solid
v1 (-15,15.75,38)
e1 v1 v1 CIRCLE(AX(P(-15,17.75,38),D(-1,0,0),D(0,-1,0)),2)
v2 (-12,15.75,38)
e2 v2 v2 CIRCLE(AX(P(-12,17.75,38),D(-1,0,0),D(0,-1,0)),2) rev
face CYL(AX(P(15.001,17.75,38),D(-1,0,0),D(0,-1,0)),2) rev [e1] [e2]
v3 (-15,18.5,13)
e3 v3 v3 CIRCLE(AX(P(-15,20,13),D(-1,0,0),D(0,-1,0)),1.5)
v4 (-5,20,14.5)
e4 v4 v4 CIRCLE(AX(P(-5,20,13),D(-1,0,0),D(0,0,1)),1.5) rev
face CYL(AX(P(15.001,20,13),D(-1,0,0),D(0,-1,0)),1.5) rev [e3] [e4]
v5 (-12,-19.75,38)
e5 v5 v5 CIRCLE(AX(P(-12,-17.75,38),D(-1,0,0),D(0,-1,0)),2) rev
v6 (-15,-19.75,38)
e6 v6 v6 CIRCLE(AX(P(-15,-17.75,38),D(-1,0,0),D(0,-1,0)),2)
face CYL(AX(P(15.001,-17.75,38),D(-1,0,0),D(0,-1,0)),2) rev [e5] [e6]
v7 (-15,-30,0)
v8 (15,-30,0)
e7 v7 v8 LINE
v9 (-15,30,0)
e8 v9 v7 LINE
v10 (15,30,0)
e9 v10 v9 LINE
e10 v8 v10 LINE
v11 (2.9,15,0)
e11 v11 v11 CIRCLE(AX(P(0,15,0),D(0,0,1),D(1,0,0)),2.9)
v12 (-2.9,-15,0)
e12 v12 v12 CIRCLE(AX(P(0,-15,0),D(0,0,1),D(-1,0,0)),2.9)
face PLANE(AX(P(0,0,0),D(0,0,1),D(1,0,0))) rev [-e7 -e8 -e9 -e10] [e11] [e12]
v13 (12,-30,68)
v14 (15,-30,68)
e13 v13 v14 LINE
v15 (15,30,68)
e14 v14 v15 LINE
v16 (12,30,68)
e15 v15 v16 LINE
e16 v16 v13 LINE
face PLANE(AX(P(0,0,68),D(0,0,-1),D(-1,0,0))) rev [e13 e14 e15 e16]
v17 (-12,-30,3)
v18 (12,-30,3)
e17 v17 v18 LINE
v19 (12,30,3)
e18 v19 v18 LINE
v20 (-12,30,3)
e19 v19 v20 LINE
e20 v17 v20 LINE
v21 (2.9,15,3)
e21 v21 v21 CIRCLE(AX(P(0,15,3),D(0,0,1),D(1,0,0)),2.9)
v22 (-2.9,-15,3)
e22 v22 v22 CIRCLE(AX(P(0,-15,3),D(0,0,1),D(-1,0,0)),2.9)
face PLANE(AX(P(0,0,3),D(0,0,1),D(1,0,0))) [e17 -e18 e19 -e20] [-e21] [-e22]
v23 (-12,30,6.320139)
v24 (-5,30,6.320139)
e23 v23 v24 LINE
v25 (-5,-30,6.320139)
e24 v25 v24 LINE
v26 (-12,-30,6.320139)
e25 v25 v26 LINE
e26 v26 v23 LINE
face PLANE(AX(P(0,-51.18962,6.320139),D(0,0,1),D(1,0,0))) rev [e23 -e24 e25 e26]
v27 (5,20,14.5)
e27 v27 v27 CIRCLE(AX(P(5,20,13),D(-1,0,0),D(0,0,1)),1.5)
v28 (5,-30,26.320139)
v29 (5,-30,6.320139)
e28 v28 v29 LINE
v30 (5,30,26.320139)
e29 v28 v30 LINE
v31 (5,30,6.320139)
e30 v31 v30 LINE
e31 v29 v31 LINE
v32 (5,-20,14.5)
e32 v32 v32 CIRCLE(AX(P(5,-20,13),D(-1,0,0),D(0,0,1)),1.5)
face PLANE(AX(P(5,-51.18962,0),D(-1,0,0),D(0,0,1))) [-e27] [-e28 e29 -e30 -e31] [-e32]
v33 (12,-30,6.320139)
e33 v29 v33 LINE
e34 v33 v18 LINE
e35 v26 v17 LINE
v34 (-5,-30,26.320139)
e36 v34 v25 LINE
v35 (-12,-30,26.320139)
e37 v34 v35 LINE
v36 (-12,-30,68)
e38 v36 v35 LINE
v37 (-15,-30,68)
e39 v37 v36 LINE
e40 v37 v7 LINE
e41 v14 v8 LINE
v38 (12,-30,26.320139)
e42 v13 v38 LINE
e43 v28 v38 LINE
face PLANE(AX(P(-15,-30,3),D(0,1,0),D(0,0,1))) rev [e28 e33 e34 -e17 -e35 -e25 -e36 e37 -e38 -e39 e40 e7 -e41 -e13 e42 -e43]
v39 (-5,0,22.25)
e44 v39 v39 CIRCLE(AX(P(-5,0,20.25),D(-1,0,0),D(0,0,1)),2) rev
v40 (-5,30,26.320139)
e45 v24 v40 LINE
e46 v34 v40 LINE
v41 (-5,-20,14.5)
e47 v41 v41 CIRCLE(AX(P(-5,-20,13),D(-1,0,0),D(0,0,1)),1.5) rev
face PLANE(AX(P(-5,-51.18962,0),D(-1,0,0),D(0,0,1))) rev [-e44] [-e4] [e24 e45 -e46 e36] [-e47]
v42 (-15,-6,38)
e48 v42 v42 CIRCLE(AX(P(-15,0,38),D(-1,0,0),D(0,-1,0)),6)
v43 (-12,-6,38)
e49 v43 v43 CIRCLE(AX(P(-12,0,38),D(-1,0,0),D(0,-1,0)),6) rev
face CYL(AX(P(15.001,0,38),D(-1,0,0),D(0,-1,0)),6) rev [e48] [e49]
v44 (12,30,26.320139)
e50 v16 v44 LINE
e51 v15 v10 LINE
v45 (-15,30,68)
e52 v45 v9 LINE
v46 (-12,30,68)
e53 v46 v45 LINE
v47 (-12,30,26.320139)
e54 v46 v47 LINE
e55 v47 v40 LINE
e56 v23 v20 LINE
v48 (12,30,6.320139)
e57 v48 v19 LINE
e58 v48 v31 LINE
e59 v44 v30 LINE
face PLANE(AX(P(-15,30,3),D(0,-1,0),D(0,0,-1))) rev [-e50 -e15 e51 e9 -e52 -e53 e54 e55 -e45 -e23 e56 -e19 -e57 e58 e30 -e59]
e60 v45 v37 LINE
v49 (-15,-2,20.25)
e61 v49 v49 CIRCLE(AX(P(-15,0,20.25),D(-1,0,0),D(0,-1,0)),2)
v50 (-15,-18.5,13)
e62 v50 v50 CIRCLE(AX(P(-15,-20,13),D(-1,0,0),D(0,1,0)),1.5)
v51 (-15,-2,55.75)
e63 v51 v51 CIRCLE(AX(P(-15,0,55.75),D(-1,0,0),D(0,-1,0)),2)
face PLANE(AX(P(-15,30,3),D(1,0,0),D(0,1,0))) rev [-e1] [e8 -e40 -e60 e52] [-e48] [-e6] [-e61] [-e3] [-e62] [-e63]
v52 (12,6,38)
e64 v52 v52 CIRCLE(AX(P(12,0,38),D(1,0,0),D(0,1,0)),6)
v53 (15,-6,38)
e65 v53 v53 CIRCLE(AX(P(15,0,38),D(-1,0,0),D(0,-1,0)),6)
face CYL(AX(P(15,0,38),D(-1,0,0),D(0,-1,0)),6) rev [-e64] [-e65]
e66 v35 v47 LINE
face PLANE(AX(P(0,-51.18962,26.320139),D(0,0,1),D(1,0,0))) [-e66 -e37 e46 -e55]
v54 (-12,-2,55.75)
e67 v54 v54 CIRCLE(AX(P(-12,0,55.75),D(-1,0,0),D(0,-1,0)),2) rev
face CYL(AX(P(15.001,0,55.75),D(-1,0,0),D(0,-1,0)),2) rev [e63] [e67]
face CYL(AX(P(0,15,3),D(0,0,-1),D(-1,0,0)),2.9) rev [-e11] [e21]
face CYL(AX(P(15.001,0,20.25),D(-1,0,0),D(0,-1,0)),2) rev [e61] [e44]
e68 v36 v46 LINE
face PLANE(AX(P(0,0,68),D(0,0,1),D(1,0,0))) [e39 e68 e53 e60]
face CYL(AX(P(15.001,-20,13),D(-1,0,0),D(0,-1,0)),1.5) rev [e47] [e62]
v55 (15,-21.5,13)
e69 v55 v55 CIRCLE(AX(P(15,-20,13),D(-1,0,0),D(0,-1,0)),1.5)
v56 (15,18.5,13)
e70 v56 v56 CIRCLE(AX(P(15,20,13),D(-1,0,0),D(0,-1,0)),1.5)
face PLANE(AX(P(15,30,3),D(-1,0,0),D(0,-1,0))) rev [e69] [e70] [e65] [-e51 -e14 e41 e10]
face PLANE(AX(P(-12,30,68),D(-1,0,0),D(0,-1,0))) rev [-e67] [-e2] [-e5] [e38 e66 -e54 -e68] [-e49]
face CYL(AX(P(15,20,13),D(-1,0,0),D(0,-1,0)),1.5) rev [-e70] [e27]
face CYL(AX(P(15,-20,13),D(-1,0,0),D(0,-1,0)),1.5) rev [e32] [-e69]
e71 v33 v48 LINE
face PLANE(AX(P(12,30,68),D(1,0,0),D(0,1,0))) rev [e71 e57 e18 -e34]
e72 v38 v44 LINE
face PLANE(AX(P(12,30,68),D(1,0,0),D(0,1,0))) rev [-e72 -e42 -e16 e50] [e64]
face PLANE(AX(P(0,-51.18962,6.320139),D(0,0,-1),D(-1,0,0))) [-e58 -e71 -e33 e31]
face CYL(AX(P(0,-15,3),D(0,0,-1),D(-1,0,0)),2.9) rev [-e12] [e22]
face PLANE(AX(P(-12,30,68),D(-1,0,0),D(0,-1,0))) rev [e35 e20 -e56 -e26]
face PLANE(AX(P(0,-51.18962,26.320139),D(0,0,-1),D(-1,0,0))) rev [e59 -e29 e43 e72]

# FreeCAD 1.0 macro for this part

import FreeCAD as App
import Part
import Sketcher
from FreeCAD import Vector
Q = App.Units.Quantity


def add_polygon(sketch, points):
    """Adds a closed chain of lines whose ends are joined by coincident constraints."""
    first, n = sketch.GeometryCount, len(points)
    for a, b in zip(points, points[1:] + points[:1]):
        sketch.addGeometry(Part.LineSegment(App.Vector(*a, 0), App.Vector(*b, 0)), False)
    for i in range(n):
        sketch.addConstraint(Sketcher.Constraint("Coincident", first + i, 2, first + (i + 1) % n, 1))

doc = App.newDocument("Part")
params = doc.addObject("Spreadsheet::Sheet", "Params")
for row, (alias, value) in enumerate([
    ("sketch1_diameter", "5.8 mm"),
    ("sketch1_width", "30 mm"),
    ("sketch1_height", "60 mm"),
    ("pad1_length", "3 mm"),
    ("sketch2_width", "3 mm"),
    ("sketch2_height", "60 mm"),
    ("pad2_length", "65 mm"),
    ("sketch3_width", "7 mm"),
    ("sketch3_height", "20 mm"),
    ("pad3_length", "60 mm"),
    ("sketch4_diameter", "3 mm"),
    ("sketch5_diameter", "12 mm"),
    ("sketch6_diameter", "4 mm"),
    ("sketch7_diameter", "4 mm"),
    ("sketch8_diameter", "4 mm"),
    ("sketch9_diameter", "4 mm"),
    ("sketch10_diameter", "3 mm"),
    ("sketch11_diameter", "3 mm"),
    ("sketch11_diameter2", "12 mm"),
], start=1):
    params.set(f"A{row}", alias)
    params.set(f"B{row}", "=" + value)
    params.setAlias(f"B{row}", alias)

body = doc.addObject("PartDesign::Body", "Body")

# Sketch on XY plane
sketch1 = body.newObject("Sketcher::SketchObject", "Sketch")
sketch1.AttachmentSupport = (doc.getObject("XY_Plane"), [""])
sketch1.MapMode = "FlatFace"
add_polygon(sketch1, [(-15, 30), (-15, -30), (15, -30), (15, 30)])  # lines 0-3
sketch1.addGeometry(Part.Circle(Vector(0, -15, 0), Vector(0, 0, 1), 2.9), False)  # 4
sketch1.addGeometry(Part.Circle(Vector(0, 15, 0), Vector(0, 0, 1), 2.9), False)  # 5
sketch1.addConstraint([
    Sketcher.Constraint("Vertical", 0),
    Sketcher.Constraint("Horizontal", 1),
    Sketcher.Constraint("Vertical", 2),
    Sketcher.Constraint("Horizontal", 3),
    Sketcher.Constraint("Equal", 4, 5),
    Sketcher.Constraint("Symmetric", 4, 3, 5, 3, -1, 1),
    Sketcher.Constraint("Symmetric", 0, 2, 2, 2, -1, 1),
    Sketcher.Constraint("PointOnObject", 4, 3, -2),
    Sketcher.Constraint("Diameter", 4, Q("5.8 mm")),
    Sketcher.Constraint("DistanceX", 1, 1, 1, 2, Q("30 mm")),
    Sketcher.Constraint("DistanceY", 0, 2, 0, 1, Q("60 mm")),
    Sketcher.Constraint("DistanceY", 4, 3, -1, 1, Q("15 mm")),
])
sketch1.setExpression("Constraints[12]", "Params.sketch1_diameter")
sketch1.setExpression("Constraints[13]", "Params.sketch1_width")
sketch1.setExpression("Constraints[14]", "Params.sketch1_height")
pad1 = body.newObject("PartDesign::Pad", "Pad")
pad1.Profile = sketch1
pad1.setExpression("Length", "Params.pad1_length")

# Sketch on XY plane
sketch2 = body.newObject("Sketcher::SketchObject", "Sketch001")
sketch2.AttachmentSupport = (doc.getObject("XY_Plane"), [""])
sketch2.MapMode = "FlatFace"
sketch2.AttachmentOffset = App.Placement(Vector(0, 0, 3), App.Rotation())
add_polygon(sketch2, [(-15, 30), (-15, -30), (-12, -30), (-12, 30)])  # lines 0-3
add_polygon(sketch2, [(12, 30), (12, -30), (15, -30), (15, 30)])  # lines 4-7
sketch2.addConstraint([
    Sketcher.Constraint("Vertical", 0),
    Sketcher.Constraint("Horizontal", 1),
    Sketcher.Constraint("Vertical", 2),
    Sketcher.Constraint("Horizontal", 3),
    Sketcher.Constraint("Vertical", 4),
    Sketcher.Constraint("Horizontal", 5),
    Sketcher.Constraint("Vertical", 6),
    Sketcher.Constraint("Horizontal", 7),
    Sketcher.Constraint("Symmetric", 2, 2, 4, 2, -1, 1),
    Sketcher.Constraint("Symmetric", 0, 2, 6, 2, -1, 1),
    Sketcher.Constraint("Horizontal", 1, 2, 4, 2),
    Sketcher.Constraint("DistanceX", 1, 1, 1, 2, Q("3 mm")),
    Sketcher.Constraint("DistanceY", 0, 2, 0, 1, Q("60 mm")),
    Sketcher.Constraint("DistanceX", 0, 2, -1, 1, Q("15 mm")),
])
sketch2.setExpression("Constraints[19]", "Params.sketch2_width")
sketch2.setExpression("Constraints[20]", "Params.sketch2_height")
pad2 = body.newObject("PartDesign::Pad", "Pad001")
pad2.Profile = sketch2
pad2.setExpression("Length", "Params.pad2_length")

# Sketch on XZ plane
sketch3 = body.newObject("Sketcher::SketchObject", "Sketch002")
sketch3.AttachmentSupport = (doc.getObject("XZ_Plane"), [""])
sketch3.MapMode = "FlatFace"
sketch3.AttachmentOffset = App.Placement(Vector(0, 0, -30), App.Rotation())
add_polygon(sketch3, [(5, 6), (5, 26), (12, 26), (12, 6)])  # lines 0-3
add_polygon(sketch3, [(-12, 6), (-12, 26), (-5, 26), (-5, 6)])  # lines 4-7
sketch3.addConstraint([
    Sketcher.Constraint("Vertical", 0),
    Sketcher.Constraint("Horizontal", 1),
    Sketcher.Constraint("Vertical", 2),
    Sketcher.Constraint("Horizontal", 3),
    Sketcher.Constraint("Vertical", 4),
    Sketcher.Constraint("Horizontal", 5),
    Sketcher.Constraint("Vertical", 6),
    Sketcher.Constraint("Horizontal", 7),
    Sketcher.Constraint("Symmetric", 1, 2, 4, 2, -2),
    Sketcher.Constraint("Symmetric", 3, 2, 6, 2, -2),
    Sketcher.Constraint("DistanceX", 1, 1, 1, 2, Q("7 mm")),
    Sketcher.Constraint("DistanceY", 0, 1, 0, 2, Q("20 mm")),
    Sketcher.Constraint("DistanceX", -1, 1, 0, 2, Q("5 mm")),
    Sketcher.Constraint("DistanceY", -1, 1, 0, 2, Q("26.320139 mm")),
])
sketch3.setExpression("Constraints[18]", "Params.sketch3_width")
sketch3.setExpression("Constraints[19]", "Params.sketch3_height")
pad3 = body.newObject("PartDesign::Pad", "Pad002")
pad3.Profile = sketch3
pad3.setExpression("Length", "Params.pad3_length")

# Sketch on YZ plane
sketch4 = body.newObject("Sketcher::SketchObject", "Sketch003")
sketch4.AttachmentSupport = (doc.getObject("YZ_Plane"), [""])
sketch4.MapMode = "FlatFace"
sketch4.AttachmentOffset = App.Placement(Vector(0, 0, -15), App.Rotation())
sketch4.addGeometry(Part.Circle(Vector(20, 13, 0), Vector(0, 0, 1), 1.5), False)
sketch4.addConstraint([
    Sketcher.Constraint("Diameter", 0, Q("3 mm")),
    Sketcher.Constraint("DistanceX", -1, 1, 0, 3, Q("20 mm")),
    Sketcher.Constraint("DistanceY", -1, 1, 0, 3, Q("13 mm")),
])
sketch4.setExpression("Constraints[0]", "Params.sketch4_diameter")
pocket1 = body.newObject("PartDesign::Pocket", "Pocket")
pocket1.Profile = sketch4
pocket1.Type = "UpToFirst"
pocket1.Reversed = True

# Sketch on YZ plane
sketch5 = body.newObject("Sketcher::SketchObject", "Sketch004")
sketch5.AttachmentSupport = (doc.getObject("YZ_Plane"), [""])
sketch5.MapMode = "FlatFace"
sketch5.AttachmentOffset = App.Placement(Vector(0, 0, -15), App.Rotation())
sketch5.addGeometry(Part.Circle(Vector(0, 38, 0), Vector(0, 0, 1), 6), False)
sketch5.addConstraint([
    Sketcher.Constraint("PointOnObject", 0, 3, -2),
    Sketcher.Constraint("Diameter", 0, Q("12 mm")),
    Sketcher.Constraint("DistanceY", -1, 1, 0, 3, Q("38 mm")),
])
sketch5.setExpression("Constraints[1]", "Params.sketch5_diameter")
pocket2 = body.newObject("PartDesign::Pocket", "Pocket001")
pocket2.Profile = sketch5
pocket2.Type = "UpToFirst"
pocket2.Reversed = True

# Sketch on YZ plane
sketch6 = body.newObject("Sketcher::SketchObject", "Sketch005")
sketch6.AttachmentSupport = (doc.getObject("YZ_Plane"), [""])
sketch6.MapMode = "FlatFace"
sketch6.AttachmentOffset = App.Placement(Vector(0, 0, -15), App.Rotation())
sketch6.addGeometry(Part.Circle(Vector(0, 20.2, 0), Vector(0, 0, 1), 2), False)
sketch6.addConstraint([
    Sketcher.Constraint("PointOnObject", 0, 3, -2),
    Sketcher.Constraint("Diameter", 0, Q("4 mm")),
    Sketcher.Constraint("DistanceY", -1, 1, 0, 3, Q("20.25 mm")),
])
sketch6.setExpression("Constraints[1]", "Params.sketch6_diameter")
pocket3 = body.newObject("PartDesign::Pocket", "Pocket002")
pocket3.Profile = sketch6
pocket3.Type = "UpToFirst"
pocket3.Reversed = True

# Sketch on YZ plane
sketch7 = body.newObject("Sketcher::SketchObject", "Sketch006")
sketch7.AttachmentSupport = (doc.getObject("YZ_Plane"), [""])
sketch7.MapMode = "FlatFace"
sketch7.AttachmentOffset = App.Placement(Vector(0, 0, -15), App.Rotation())
sketch7.addGeometry(Part.Circle(Vector(17.8, 38, 0), Vector(0, 0, 1), 2), False)
sketch7.addConstraint([
    Sketcher.Constraint("Diameter", 0, Q("4 mm")),
    Sketcher.Constraint("DistanceY", -1, 1, 0, 3, Q("38 mm")),
    Sketcher.Constraint("DistanceX", -1, 1, 0, 3, Q("17.75 mm")),
])
sketch7.setExpression("Constraints[0]", "Params.sketch7_diameter")
pocket4 = body.newObject("PartDesign::Pocket", "Pocket003")
pocket4.Profile = sketch7
pocket4.Type = "UpToFirst"
pocket4.Reversed = True

# Sketch on YZ plane
sketch8 = body.newObject("Sketcher::SketchObject", "Sketch007")
sketch8.AttachmentSupport = (doc.getObject("YZ_Plane"), [""])
sketch8.MapMode = "FlatFace"
sketch8.AttachmentOffset = App.Placement(Vector(0, 0, -15), App.Rotation())
sketch8.addGeometry(Part.Circle(Vector(0, 55.8, 0), Vector(0, 0, 1), 2), False)
sketch8.addConstraint([
    Sketcher.Constraint("PointOnObject", 0, 3, -2),
    Sketcher.Constraint("Diameter", 0, Q("4 mm")),
    Sketcher.Constraint("DistanceY", -1, 1, 0, 3, Q("55.75 mm")),
])
sketch8.setExpression("Constraints[1]", "Params.sketch8_diameter")
pocket5 = body.newObject("PartDesign::Pocket", "Pocket004")
pocket5.Profile = sketch8
pocket5.Type = "UpToFirst"
pocket5.Reversed = True

# Sketch on YZ plane
sketch9 = body.newObject("Sketcher::SketchObject", "Sketch008")
sketch9.AttachmentSupport = (doc.getObject("YZ_Plane"), [""])
sketch9.MapMode = "FlatFace"
sketch9.AttachmentOffset = App.Placement(Vector(0, 0, -15), App.Rotation())
sketch9.addGeometry(Part.Circle(Vector(-17.8, 38, 0), Vector(0, 0, 1), 2), False)
sketch9.addConstraint([
    Sketcher.Constraint("Diameter", 0, Q("4 mm")),
    Sketcher.Constraint("DistanceY", -1, 1, 0, 3, Q("38 mm")),
    Sketcher.Constraint("DistanceX", 0, 3, -1, 1, Q("17.75 mm")),
])
sketch9.setExpression("Constraints[0]", "Params.sketch9_diameter")
pocket6 = body.newObject("PartDesign::Pocket", "Pocket005")
pocket6.Profile = sketch9
pocket6.Type = "UpToFirst"
pocket6.Reversed = True

# Sketch on YZ plane
sketch10 = body.newObject("Sketcher::SketchObject", "Sketch009")
sketch10.AttachmentSupport = (doc.getObject("YZ_Plane"), [""])
sketch10.MapMode = "FlatFace"
sketch10.AttachmentOffset = App.Placement(Vector(0, 0, -15), App.Rotation())
sketch10.addGeometry(Part.Circle(Vector(-20, 13, 0), Vector(0, 0, 1), 1.5), False)
sketch10.addConstraint([
    Sketcher.Constraint("Diameter", 0, Q("3 mm")),
    Sketcher.Constraint("DistanceX", 0, 3, -1, 1, Q("20 mm")),
    Sketcher.Constraint("DistanceY", -1, 1, 0, 3, Q("13 mm")),
])
sketch10.setExpression("Constraints[0]", "Params.sketch10_diameter")
pocket7 = body.newObject("PartDesign::Pocket", "Pocket006")
pocket7.Profile = sketch10
pocket7.Type = "UpToFirst"
pocket7.Reversed = True

# Sketch on YZ plane
sketch11 = body.newObject("Sketcher::SketchObject", "Sketch010")
sketch11.AttachmentSupport = (doc.getObject("YZ_Plane"), [""])
sketch11.MapMode = "FlatFace"
sketch11.AttachmentOffset = App.Placement(Vector(0, 0, 12), App.Rotation())
sketch11.addGeometry([
    Part.Circle(Vector(-20, 13, 0), Vector(0, 0, 1), 1.5),
    Part.Circle(Vector(20, 13, 0), Vector(0, 0, 1), 1.5),
    Part.Circle(Vector(0, 38, 0), Vector(0, 0, 1), 6),
], False)
sketch11.addConstraint([
    Sketcher.Constraint("Equal", 0, 1),
    Sketcher.Constraint("Symmetric", 0, 3, 1, 3, -2),
    Sketcher.Constraint("PointOnObject", 2, 3, -2),
    Sketcher.Constraint("Diameter", 0, Q("3 mm")),
    Sketcher.Constraint("Diameter", 2, Q("12 mm")),
    Sketcher.Constraint("DistanceX", 0, 3, -1, 1, Q("20 mm")),
    Sketcher.Constraint("DistanceY", -1, 1, 0, 3, Q("13 mm")),
    Sketcher.Constraint("DistanceY", -1, 1, 2, 3, Q("38 mm")),
])
sketch11.setExpression("Constraints[3]", "Params.sketch11_diameter")
sketch11.setExpression("Constraints[4]", "Params.sketch11_diameter2")
pocket8 = body.newObject("PartDesign::Pocket", "Pocket007")
pocket8.Profile = sketch11
pocket8.Type = "ThroughAll"
pocket8.Midplane = True

doc.recompute()
